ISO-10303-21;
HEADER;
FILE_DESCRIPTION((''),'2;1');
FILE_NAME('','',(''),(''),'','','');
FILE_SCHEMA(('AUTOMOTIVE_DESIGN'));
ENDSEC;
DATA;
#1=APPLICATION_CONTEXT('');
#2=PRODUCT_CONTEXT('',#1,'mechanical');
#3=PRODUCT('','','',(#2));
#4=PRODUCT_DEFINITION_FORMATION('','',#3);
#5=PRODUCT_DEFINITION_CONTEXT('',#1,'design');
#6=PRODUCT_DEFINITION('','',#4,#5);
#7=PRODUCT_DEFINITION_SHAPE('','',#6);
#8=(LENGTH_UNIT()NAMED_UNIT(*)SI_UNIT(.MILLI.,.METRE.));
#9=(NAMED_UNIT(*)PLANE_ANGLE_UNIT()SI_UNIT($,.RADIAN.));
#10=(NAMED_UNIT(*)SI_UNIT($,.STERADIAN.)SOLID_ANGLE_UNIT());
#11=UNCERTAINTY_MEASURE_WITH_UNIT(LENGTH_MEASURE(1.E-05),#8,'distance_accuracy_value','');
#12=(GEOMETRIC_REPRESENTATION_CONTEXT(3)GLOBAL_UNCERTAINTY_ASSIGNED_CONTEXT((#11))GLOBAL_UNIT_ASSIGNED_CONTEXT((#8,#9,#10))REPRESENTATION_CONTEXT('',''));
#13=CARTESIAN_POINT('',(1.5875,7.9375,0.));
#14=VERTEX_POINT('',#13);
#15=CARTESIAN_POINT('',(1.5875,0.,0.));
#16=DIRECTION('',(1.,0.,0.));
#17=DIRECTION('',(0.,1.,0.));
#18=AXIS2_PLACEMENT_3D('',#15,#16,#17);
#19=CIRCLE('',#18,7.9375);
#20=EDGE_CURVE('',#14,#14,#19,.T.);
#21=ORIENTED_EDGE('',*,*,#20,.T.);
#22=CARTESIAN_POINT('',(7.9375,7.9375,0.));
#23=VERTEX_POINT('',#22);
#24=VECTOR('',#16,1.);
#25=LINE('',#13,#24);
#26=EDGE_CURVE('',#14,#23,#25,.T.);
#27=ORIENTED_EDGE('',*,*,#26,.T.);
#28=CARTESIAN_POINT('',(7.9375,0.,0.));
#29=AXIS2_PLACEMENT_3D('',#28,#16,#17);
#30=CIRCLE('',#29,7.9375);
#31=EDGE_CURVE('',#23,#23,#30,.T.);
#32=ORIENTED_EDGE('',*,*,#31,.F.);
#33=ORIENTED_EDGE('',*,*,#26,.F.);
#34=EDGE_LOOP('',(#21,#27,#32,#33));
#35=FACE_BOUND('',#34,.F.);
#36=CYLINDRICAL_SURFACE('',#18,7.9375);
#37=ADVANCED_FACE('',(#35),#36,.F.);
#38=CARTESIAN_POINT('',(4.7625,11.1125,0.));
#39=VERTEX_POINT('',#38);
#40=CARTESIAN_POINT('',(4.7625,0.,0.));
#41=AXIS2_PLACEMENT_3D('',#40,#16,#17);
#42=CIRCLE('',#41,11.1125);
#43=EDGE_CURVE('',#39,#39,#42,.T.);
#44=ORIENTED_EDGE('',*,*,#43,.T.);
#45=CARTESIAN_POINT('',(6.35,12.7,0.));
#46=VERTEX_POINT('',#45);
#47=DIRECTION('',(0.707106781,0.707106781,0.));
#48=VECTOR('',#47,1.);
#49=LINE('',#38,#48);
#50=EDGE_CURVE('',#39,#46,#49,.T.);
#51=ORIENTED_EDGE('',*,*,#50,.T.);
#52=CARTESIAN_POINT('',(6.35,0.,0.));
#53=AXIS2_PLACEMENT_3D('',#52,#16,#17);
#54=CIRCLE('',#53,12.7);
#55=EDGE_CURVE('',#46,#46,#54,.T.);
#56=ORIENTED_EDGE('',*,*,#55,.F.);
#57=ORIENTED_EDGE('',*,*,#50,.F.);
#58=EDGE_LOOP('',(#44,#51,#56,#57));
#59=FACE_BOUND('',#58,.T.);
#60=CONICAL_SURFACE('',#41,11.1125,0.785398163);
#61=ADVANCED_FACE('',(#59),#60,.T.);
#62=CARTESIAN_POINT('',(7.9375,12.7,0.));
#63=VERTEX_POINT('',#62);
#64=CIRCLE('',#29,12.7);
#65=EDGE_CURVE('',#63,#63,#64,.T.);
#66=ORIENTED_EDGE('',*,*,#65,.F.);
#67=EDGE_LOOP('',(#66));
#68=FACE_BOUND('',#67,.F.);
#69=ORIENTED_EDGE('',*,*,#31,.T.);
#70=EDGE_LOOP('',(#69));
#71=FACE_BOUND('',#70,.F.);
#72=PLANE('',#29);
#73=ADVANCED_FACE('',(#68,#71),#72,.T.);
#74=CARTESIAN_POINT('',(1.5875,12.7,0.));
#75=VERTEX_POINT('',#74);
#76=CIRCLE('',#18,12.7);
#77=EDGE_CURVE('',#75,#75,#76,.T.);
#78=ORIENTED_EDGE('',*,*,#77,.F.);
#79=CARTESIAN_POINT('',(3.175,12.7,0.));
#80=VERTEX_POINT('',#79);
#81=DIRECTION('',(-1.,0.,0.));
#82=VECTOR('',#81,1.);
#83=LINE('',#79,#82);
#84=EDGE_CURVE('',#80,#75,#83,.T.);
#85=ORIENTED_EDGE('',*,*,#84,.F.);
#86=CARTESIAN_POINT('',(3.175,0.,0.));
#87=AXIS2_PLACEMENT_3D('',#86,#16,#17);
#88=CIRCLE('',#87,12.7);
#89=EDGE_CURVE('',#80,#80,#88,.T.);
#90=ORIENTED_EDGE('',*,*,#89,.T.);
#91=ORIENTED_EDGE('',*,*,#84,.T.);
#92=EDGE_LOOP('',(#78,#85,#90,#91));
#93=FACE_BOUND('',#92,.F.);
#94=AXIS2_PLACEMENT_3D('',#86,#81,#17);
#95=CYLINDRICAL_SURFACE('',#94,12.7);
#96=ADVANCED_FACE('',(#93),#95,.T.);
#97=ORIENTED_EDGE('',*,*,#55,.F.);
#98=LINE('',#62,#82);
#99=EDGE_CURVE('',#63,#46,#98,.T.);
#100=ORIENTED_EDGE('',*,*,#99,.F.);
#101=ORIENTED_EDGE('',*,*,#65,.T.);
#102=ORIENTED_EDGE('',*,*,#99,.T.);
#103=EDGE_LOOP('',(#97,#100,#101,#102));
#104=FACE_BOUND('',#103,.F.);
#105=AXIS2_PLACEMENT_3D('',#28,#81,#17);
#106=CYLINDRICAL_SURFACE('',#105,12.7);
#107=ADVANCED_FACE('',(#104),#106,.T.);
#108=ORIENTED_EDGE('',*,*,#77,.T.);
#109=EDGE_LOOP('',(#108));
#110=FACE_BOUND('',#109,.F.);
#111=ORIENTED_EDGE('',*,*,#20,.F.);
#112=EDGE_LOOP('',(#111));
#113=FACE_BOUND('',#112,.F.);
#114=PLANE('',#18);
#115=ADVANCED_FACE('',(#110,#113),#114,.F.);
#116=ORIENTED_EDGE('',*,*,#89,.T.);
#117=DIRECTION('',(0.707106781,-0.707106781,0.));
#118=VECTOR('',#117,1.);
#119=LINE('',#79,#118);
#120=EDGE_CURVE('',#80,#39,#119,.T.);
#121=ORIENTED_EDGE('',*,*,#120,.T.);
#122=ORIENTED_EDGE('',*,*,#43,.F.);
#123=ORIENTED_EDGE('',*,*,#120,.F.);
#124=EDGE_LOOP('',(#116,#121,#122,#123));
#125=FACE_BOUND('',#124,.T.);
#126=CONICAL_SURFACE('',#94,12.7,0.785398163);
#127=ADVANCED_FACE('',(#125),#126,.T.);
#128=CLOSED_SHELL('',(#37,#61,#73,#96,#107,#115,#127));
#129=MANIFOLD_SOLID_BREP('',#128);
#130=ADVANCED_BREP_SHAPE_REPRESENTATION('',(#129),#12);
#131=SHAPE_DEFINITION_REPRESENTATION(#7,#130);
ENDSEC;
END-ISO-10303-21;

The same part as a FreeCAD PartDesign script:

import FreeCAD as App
import Part
import Sketcher

V = App.Vector
Q = App.Units.Quantity

doc = App.newDocument("Part")
body = doc.addObject("PartDesign::Body", "Body")

# Sketch on XY plane
sketch1 = body.newObject("Sketcher::SketchObject", "Sketch")
sketch1.AttachmentSupport = (doc.getObject("XY_Plane"), [""])
sketch1.MapMode = "FlatFace"
sketch1.addGeometry([
    Part.LineSegment(V(1.6, 12.7, 0), V(1.6, 7.9, 0)),  # 0
    Part.LineSegment(V(1.6, 7.9, 0), V(7.9, 7.9, 0)),  # 1
    Part.LineSegment(V(7.9, 7.9, 0), V(7.9, 12.7, 0)),  # 2
    Part.LineSegment(V(7.9, 12.7, 0), V(6.3, 12.7, 0)),  # 3
    Part.LineSegment(V(6.3, 12.7, 0), V(4.8, 11.1, 0)),  # 4
    Part.LineSegment(V(4.8, 11.1, 0), V(3.2, 12.7, 0)),  # 5
    Part.LineSegment(V(3.2, 12.7, 0), V(1.6, 12.7, 0)),  # 6
], False)
sketch1.addConstraint([
    Sketcher.Constraint("Coincident", 0, 2, 1, 1),
    Sketcher.Constraint("Coincident", 1, 2, 2, 1),
    Sketcher.Constraint("Coincident", 2, 2, 3, 1),
    Sketcher.Constraint("Coincident", 3, 2, 4, 1),
    Sketcher.Constraint("Coincident", 4, 2, 5, 1),
    Sketcher.Constraint("Coincident", 5, 2, 6, 1),
    Sketcher.Constraint("Coincident", 6, 2, 0, 1),
    Sketcher.Constraint("Vertical", 0),
    Sketcher.Constraint("Horizontal", 1),
    Sketcher.Constraint("Vertical", 2),
    Sketcher.Constraint("Horizontal", 3),
    Sketcher.Constraint("Horizontal", 6),
    Sketcher.Constraint("Perpendicular", 4, 5),
    Sketcher.Constraint("Horizontal", 3, 2, 5, 2),
    Sketcher.Constraint("Equal", 3, 6),
    Sketcher.Constraint("Equal", 4, 5),
    Sketcher.Constraint("DistanceX", 1, 1, 1, 2, Q("0.25 in")),
    Sketcher.Constraint("DistanceX", 3, 2, 3, 1, Q("0.0625 in")),
    Sketcher.Constraint("DistanceY", 0, 2, 0, 1, Q("0.1875 in")),
    Sketcher.Constraint("DistanceX", -1, 1, 3, 2, Q("0.25 in")),
    Sketcher.Constraint("DistanceY", -1, 1, 0, 2, Q("0.3125 in")),
])
revolution = body.newObject("PartDesign::Revolution", "Revolution")
revolution.Profile = sketch1
revolution.ReferenceAxis = (sketch1, ["H_Axis"])
revolution.Angle = 360

doc.recompute()
